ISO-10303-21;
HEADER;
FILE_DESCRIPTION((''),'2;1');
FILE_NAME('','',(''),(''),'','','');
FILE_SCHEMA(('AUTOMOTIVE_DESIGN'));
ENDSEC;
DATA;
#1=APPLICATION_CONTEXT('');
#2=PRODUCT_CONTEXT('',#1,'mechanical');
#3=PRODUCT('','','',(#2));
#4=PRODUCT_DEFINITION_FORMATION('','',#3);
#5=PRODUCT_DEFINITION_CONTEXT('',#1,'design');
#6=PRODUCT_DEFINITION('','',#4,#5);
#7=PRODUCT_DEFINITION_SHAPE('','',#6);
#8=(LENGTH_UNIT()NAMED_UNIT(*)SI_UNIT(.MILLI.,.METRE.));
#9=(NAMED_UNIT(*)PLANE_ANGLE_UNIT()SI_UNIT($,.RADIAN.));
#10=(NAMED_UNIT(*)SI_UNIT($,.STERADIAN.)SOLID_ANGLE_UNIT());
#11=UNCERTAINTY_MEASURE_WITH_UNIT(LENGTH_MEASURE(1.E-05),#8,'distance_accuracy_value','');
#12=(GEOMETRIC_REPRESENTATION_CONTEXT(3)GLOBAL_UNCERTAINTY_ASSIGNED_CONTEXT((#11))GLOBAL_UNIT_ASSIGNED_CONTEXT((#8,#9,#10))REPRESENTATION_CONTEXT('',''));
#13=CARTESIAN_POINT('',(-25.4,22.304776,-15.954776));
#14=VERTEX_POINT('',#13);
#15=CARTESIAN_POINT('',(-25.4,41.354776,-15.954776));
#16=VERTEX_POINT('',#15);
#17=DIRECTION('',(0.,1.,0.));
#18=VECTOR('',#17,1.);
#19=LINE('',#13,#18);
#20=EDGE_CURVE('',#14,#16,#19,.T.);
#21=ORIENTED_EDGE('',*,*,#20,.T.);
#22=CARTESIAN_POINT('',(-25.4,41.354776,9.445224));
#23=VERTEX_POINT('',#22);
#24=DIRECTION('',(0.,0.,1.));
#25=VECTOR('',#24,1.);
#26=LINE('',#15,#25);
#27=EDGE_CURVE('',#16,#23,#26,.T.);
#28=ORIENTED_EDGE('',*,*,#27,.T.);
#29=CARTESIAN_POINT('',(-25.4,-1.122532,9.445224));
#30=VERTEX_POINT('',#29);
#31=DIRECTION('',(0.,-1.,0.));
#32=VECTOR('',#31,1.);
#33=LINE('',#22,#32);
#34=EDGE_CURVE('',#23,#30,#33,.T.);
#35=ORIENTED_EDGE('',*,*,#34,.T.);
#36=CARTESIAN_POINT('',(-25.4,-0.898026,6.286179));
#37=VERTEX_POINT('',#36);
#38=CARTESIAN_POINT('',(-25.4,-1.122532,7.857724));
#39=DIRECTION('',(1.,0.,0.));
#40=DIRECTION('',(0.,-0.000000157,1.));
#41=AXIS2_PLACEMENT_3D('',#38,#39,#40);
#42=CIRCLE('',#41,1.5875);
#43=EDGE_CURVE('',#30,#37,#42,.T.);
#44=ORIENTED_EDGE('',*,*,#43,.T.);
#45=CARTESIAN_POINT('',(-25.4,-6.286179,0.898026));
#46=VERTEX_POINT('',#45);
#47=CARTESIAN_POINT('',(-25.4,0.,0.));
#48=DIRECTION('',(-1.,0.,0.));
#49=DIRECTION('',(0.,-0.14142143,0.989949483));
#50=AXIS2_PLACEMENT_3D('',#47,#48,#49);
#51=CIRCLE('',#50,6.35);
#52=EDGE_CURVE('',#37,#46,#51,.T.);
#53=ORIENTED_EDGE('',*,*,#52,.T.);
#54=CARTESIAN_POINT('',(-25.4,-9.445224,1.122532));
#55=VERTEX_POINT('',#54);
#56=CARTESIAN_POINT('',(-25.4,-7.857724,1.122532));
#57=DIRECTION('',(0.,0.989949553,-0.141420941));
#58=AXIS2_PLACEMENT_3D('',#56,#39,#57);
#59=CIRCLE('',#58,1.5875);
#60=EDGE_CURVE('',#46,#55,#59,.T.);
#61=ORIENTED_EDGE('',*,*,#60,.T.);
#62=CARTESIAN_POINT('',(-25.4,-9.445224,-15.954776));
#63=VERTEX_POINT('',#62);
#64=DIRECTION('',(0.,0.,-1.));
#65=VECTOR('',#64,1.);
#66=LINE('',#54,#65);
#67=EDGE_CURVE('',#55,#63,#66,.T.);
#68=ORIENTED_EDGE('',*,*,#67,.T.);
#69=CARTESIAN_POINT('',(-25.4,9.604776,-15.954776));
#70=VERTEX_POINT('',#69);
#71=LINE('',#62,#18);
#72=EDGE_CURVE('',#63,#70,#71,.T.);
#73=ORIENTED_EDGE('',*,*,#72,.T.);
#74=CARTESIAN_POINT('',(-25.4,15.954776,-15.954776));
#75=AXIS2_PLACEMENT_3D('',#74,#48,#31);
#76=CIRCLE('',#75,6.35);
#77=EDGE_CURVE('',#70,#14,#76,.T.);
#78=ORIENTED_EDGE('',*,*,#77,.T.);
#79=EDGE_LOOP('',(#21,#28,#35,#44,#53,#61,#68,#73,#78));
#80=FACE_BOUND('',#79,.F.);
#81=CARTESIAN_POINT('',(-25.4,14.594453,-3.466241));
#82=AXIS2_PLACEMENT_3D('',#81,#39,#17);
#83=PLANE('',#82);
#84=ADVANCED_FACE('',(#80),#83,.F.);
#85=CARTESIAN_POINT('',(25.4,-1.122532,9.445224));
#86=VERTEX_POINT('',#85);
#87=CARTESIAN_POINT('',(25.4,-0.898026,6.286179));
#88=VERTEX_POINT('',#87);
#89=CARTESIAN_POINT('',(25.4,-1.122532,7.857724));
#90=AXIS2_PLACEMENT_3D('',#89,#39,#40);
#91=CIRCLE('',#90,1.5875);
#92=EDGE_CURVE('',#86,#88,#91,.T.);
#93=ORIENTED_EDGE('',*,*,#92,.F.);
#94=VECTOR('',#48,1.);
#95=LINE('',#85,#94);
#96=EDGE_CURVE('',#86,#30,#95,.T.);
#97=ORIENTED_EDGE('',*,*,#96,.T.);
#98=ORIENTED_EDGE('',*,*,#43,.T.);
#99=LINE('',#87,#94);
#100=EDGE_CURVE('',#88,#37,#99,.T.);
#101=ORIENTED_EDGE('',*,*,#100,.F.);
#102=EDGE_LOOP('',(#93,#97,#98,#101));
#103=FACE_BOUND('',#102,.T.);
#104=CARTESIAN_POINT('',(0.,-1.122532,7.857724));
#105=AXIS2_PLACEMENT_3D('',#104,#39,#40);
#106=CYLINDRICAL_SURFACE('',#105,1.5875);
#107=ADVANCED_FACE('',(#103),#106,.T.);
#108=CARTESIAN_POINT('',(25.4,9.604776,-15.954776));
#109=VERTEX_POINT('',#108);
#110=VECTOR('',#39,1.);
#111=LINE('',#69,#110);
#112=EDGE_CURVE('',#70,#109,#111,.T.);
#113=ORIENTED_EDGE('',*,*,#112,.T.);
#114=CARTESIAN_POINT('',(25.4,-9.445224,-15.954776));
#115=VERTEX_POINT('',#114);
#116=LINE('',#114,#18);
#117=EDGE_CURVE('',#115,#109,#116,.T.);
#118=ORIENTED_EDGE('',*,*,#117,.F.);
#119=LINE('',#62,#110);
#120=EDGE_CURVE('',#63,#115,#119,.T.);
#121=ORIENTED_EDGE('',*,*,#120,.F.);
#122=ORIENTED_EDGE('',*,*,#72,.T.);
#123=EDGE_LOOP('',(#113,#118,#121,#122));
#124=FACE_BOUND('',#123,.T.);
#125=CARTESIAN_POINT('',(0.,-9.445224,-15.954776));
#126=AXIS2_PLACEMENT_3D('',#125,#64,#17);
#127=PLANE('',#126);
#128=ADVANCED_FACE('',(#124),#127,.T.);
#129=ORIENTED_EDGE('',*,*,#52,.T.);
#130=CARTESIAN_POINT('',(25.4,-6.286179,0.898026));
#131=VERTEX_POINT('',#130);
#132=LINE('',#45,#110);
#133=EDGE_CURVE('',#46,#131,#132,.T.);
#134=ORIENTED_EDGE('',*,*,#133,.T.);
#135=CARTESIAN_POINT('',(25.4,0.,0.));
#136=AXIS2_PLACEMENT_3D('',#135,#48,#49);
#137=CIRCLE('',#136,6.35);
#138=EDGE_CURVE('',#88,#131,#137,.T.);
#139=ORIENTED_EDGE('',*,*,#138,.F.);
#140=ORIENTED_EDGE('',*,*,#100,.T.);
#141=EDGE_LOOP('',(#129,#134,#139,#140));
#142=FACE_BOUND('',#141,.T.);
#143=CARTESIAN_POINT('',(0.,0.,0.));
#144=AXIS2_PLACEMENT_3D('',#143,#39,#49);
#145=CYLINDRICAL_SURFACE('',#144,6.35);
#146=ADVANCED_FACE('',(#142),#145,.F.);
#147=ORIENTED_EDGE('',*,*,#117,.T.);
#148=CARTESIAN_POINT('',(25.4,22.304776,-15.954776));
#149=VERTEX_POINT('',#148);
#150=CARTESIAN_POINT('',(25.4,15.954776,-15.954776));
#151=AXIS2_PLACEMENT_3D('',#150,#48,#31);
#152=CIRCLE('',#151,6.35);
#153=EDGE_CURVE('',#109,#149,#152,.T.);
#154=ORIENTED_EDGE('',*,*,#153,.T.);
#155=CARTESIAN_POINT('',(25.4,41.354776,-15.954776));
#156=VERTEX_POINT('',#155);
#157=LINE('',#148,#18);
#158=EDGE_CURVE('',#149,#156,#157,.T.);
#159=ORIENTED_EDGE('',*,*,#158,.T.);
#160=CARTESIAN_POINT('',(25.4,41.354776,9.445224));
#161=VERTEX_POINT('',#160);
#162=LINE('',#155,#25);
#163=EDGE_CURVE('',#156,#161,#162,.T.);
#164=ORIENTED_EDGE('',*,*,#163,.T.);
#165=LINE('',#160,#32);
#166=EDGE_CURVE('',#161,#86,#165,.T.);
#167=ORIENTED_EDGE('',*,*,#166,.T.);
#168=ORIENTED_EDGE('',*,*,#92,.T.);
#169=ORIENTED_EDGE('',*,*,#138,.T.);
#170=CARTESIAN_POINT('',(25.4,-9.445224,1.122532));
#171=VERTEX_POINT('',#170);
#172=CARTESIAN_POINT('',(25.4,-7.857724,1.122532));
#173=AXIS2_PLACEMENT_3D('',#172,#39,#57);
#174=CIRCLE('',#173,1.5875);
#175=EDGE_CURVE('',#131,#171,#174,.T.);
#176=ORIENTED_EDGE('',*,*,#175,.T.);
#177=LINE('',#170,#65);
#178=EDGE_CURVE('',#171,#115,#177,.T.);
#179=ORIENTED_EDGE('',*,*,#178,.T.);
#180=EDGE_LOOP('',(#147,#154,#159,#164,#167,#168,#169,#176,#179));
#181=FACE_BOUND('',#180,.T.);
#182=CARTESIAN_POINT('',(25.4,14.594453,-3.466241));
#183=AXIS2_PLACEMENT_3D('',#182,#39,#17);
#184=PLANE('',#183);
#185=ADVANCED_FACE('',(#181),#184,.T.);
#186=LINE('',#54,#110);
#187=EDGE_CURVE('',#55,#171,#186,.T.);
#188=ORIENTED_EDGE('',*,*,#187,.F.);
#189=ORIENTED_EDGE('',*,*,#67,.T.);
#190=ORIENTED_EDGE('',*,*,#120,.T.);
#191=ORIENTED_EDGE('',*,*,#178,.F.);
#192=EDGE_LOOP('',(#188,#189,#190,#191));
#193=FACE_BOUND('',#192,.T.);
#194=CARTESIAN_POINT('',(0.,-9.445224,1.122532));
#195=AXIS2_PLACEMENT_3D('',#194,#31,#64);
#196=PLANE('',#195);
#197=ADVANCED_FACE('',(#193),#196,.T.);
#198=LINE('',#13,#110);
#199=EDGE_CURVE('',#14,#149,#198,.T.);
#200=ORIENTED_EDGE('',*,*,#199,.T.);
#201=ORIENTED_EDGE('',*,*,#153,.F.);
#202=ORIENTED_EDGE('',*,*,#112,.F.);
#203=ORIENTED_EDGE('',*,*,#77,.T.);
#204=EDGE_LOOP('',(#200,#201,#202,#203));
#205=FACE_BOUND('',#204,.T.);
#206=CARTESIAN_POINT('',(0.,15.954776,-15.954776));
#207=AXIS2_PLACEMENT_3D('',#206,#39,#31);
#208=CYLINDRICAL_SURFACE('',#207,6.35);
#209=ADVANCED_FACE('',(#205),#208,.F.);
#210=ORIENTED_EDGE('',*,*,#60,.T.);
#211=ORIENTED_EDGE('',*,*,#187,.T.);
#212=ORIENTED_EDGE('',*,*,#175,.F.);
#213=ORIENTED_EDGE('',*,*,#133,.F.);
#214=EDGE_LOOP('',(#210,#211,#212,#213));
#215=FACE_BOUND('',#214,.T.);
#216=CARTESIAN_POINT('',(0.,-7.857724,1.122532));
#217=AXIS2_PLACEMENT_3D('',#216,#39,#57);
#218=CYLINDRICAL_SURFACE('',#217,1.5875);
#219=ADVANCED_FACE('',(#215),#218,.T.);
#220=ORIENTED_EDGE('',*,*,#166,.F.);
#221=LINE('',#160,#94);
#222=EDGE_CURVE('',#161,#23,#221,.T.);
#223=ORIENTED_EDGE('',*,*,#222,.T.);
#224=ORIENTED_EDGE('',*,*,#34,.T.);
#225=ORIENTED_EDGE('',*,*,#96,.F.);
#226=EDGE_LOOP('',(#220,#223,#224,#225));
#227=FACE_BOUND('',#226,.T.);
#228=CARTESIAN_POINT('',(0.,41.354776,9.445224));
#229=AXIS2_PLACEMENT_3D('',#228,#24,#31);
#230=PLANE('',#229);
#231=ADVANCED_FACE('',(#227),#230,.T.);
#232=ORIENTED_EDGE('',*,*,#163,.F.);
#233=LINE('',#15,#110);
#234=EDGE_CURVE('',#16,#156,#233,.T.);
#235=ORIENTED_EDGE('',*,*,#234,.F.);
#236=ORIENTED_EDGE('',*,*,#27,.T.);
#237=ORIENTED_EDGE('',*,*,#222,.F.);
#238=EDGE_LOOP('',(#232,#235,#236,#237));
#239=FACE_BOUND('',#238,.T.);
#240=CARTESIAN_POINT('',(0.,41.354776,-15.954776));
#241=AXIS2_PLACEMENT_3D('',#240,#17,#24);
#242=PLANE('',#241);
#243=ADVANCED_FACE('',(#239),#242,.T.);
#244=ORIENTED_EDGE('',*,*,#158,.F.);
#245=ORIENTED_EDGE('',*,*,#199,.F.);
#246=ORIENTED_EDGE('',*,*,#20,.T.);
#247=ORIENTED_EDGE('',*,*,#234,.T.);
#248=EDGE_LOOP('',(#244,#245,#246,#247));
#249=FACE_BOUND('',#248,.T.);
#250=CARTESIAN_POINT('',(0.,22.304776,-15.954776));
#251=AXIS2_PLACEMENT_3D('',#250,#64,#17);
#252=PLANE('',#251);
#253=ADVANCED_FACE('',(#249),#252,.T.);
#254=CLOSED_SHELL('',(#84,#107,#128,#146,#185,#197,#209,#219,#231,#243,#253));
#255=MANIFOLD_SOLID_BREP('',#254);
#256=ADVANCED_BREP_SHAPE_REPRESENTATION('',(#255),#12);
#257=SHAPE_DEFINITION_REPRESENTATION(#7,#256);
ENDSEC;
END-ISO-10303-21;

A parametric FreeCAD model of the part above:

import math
import FreeCAD as App
import Part
import Sketcher
from FreeCAD import Vector
Q = App.Units.Quantity

doc = App.newDocument("Part")
body = doc.addObject("PartDesign::Body", "Body")

# Sketch on YZ plane
sketch1 = doc.addObject("Sketcher::SketchObject", "Sketch")
body.addObject(sketch1)
sketch1.AttachmentSupport = (doc.YZ_Plane, [""])
sketch1.MapMode = "FlatFace"
sketch1.addGeometry(Part.ArcOfCircle(Part.Circle(Vector(0, 0, 0), Vector(0, 0, 1), 6.3), math.radians(172), math.radians(458)), False)
sketch1.addGeometry(Part.ArcOfCircle(Part.Circle(Vector(-7.9, 1.1, 0), Vector(0, 0, 1), 1.6), math.radians(-8), math.radians(180)), False)
sketch1.addGeometry(Part.LineSegment(Vector(-9.4, 1.1, 0), Vector(-9.4, -16, 0)), False)
sketch1.addGeometry(Part.LineSegment(Vector(-9.4, -16, 0), Vector(9.6, -16, 0)), False)
sketch1.addGeometry(Part.ArcOfCircle(Part.Circle(Vector(16, -16, 0), Vector(0, 0, 1), 6.3), math.radians(0), math.radians(180)), False)
sketch1.addGeometry(Part.LineSegment(Vector(22.3, -16, 0), Vector(41.4, -16, 0)), False)
sketch1.addGeometry(Part.LineSegment(Vector(41.4, -16, 0), Vector(41.4, 9.4, 0)), False)
sketch1.addGeometry(Part.LineSegment(Vector(41.4, 9.4, 0), Vector(-1.1, 9.4, 0)), False)
sketch1.addGeometry(Part.ArcOfCircle(Part.Circle(Vector(-1.1, 7.9, 0), Vector(0, 0, 1), 1.6), math.radians(90), math.radians(278)), False)
sketch1.addConstraint(Sketcher.Constraint("Tangent", 0, 1, 1, 1))
sketch1.addConstraint(Sketcher.Constraint("Tangent", 1, 2, 2, 1))
sketch1.addConstraint(Sketcher.Constraint("Coincident", 2, 2, 3, 1))
sketch1.addConstraint(Sketcher.Constraint("Coincident", 3, 2, 4, 2))
sketch1.addConstraint(Sketcher.Constraint("Coincident", 4, 1, 5, 1))
sketch1.addConstraint(Sketcher.Constraint("Coincident", 5, 2, 6, 1))
sketch1.addConstraint(Sketcher.Constraint("Coincident", 6, 2, 7, 1))
sketch1.addConstraint(Sketcher.Constraint("Tangent", 7, 2, 8, 1))
sketch1.addConstraint(Sketcher.Constraint("Tangent", 8, 2, 0, 2))
sketch1.addConstraint(Sketcher.Constraint("Vertical", 2))
sketch1.addConstraint(Sketcher.Constraint("Horizontal", 3))
sketch1.addConstraint(Sketcher.Constraint("Horizontal", 5))
sketch1.addConstraint(Sketcher.Constraint("Vertical", 6))
sketch1.addConstraint(Sketcher.Constraint("Horizontal", 7))
sketch1.addConstraint(Sketcher.Constraint("Coincident", 0, 3, -1, 1))
sketch1.addConstraint(Sketcher.Constraint("Equal", 0, 4))
sketch1.addConstraint(Sketcher.Constraint("Equal", 1, 8))
sketch1.addConstraint(Sketcher.Constraint("Horizontal", 4, 3, 2, 2))
sketch1.addConstraint(Sketcher.Constraint("Horizontal", 3, 2, 4, 1))
sketch1.addConstraint(Sketcher.Constraint("Equal", 3, 5))
sketch1.addConstraint(Sketcher.Constraint("DistanceY", 6, 1, 6, 2, Q("1 in")))
sketch1.addConstraint(Sketcher.Constraint("Radius", 0, Q("0.25 in")))
sketch1.addConstraint(Sketcher.Constraint("Radius", 1, Q("0.0625 in")))
sketch1.addConstraint(Sketcher.Constraint("DistanceX", 1, 2, 4, 3, Q("1 in")))
sketch1.addConstraint(Sketcher.Constraint("DistanceY", 2, 2, 2, 1, 17.077308))
sketch1.addConstraint(Sketcher.Constraint("DistanceY", 4, 3, 0, 1, 16.852802))
pad1 = doc.addObject("PartDesign::Pad", "Pad")
body.addObject(pad1)
pad1.Profile = sketch1
pad1.Length = Q("2 in")
pad1.Midplane = True

doc.recompute()
